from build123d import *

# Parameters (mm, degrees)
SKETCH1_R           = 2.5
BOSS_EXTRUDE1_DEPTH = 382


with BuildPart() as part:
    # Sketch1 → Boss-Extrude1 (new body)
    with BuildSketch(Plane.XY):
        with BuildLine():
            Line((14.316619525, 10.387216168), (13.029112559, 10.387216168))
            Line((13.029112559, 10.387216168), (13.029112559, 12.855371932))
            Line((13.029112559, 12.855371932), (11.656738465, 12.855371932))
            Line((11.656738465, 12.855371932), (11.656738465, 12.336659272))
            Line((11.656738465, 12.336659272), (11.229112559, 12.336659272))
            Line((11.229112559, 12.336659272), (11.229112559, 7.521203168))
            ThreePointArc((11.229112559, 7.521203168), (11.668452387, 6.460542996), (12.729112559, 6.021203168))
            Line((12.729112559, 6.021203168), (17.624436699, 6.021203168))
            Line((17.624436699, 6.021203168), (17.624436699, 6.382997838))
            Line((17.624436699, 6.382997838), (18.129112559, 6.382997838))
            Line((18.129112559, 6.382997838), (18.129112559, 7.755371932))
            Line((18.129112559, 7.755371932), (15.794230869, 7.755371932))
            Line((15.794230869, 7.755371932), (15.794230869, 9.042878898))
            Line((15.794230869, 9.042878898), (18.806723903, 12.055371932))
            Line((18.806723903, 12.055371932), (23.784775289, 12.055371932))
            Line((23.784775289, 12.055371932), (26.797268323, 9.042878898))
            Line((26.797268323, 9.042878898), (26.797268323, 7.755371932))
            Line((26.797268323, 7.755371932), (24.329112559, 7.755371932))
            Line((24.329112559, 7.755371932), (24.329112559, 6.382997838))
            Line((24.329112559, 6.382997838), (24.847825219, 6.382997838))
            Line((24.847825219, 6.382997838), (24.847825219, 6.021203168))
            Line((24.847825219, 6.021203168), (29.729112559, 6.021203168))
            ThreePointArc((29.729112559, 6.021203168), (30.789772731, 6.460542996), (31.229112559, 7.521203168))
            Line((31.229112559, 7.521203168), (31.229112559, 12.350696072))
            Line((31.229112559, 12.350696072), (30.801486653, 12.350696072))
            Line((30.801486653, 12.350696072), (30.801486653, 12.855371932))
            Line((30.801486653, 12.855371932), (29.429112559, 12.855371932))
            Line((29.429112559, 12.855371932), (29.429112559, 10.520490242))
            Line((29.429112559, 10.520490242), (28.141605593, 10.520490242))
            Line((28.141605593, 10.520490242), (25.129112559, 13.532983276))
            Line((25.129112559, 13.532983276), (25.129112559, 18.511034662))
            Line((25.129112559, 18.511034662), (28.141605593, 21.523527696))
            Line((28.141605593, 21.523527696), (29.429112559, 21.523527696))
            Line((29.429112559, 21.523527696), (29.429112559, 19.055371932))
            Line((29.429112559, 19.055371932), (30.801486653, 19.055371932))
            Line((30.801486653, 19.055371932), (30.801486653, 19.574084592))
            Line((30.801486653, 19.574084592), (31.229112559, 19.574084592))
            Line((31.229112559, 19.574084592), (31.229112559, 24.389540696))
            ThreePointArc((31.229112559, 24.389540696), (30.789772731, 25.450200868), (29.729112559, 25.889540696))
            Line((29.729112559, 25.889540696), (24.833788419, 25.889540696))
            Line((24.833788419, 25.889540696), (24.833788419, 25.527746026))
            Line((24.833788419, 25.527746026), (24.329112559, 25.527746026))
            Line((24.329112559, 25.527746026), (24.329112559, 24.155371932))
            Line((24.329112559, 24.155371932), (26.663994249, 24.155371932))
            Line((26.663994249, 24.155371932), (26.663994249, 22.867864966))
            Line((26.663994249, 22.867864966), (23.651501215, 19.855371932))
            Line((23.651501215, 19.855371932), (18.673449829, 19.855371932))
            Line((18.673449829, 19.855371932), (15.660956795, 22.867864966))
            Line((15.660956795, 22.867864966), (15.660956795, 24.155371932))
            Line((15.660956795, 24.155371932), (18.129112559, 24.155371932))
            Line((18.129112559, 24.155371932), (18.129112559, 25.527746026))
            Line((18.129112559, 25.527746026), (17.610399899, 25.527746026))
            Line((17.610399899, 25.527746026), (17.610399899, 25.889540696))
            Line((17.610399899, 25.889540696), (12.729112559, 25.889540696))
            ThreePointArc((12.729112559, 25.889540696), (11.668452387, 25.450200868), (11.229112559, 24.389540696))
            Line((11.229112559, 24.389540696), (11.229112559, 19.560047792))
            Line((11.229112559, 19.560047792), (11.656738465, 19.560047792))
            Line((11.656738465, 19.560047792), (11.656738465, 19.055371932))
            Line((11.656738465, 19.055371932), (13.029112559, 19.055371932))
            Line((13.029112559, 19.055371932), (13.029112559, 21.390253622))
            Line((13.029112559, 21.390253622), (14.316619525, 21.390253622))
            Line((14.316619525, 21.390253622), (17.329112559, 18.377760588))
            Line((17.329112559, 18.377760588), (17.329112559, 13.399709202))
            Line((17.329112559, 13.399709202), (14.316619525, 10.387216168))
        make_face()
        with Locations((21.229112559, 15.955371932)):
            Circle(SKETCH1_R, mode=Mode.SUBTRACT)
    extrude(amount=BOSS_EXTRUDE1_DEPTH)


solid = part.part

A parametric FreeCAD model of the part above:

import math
import FreeCAD as App
import Part
import Sketcher
from FreeCAD import Vector
Q = App.Units.Quantity

doc = App.newDocument("Part")
params = doc.addObject("Spreadsheet::Sheet", "Params")
for row, (alias, value) in enumerate([
    ("sketch1_diameter", "5 mm"),
    ("sketch1_radius", "1.5 mm"),
    ("pad1_length", "382 mm"),
], start=1):
    params.set(f"A{row}", alias)
    params.set(f"B{row}", "=" + value)
    params.setAlias(f"B{row}", alias)

body = doc.addObject("PartDesign::Body", "Body")

sketch1 = body.newObject("Sketcher::SketchObject", "Sketch")
sketch1.AttachmentSupport = (doc.getObject("XY_Plane"), [""])
sketch1.MapMode = "FlatFace"
sketch1.addGeometry([
    Part.LineSegment(Vector(14.31662, 10.387216, 0), Vector(13.029113, 10.387216, 0)),
    Part.LineSegment(Vector(13.029113, 10.387216, 0), Vector(13.029113, 12.855372, 0)),
    Part.LineSegment(Vector(13.029113, 12.855372, 0), Vector(11.656738, 12.855372, 0)),
    Part.LineSegment(Vector(11.656738, 12.855372, 0), Vector(11.656738, 12.336659, 0)),
    Part.LineSegment(Vector(11.656738, 12.336659, 0), Vector(11.229113, 12.336659, 0)),
    Part.LineSegment(Vector(11.229113, 12.336659, 0), Vector(11.229113, 7.521203, 0)),
    Part.ArcOfCircle(Part.Circle(Vector(12.729113, 7.521203, 0), Vector(0, 0, 1), 1.5), math.radians(180), math.radians(270)),
    Part.LineSegment(Vector(12.729113, 6.021203, 0), Vector(17.624437, 6.021203, 0)),
    Part.LineSegment(Vector(17.624437, 6.021203, 0), Vector(17.624437, 6.382998, 0)),
    Part.LineSegment(Vector(17.624437, 6.382998, 0), Vector(18.129113, 6.382998, 0)),
    Part.LineSegment(Vector(18.129113, 6.382998, 0), Vector(18.129113, 7.755372, 0)),
    Part.LineSegment(Vector(18.129113, 7.755372, 0), Vector(15.794231, 7.755372, 0)),
    Part.LineSegment(Vector(15.794231, 7.755372, 0), Vector(15.794231, 9.042879, 0)),
    Part.LineSegment(Vector(15.794231, 9.042879, 0), Vector(18.806724, 12.055372, 0)),
    Part.LineSegment(Vector(18.806724, 12.055372, 0), Vector(23.784775, 12.055372, 0)),
    Part.LineSegment(Vector(23.784775, 12.055372, 0), Vector(26.797268, 9.042879, 0)),
    Part.LineSegment(Vector(26.797268, 9.042879, 0), Vector(26.797268, 7.755372, 0)),
    Part.LineSegment(Vector(26.797268, 7.755372, 0), Vector(24.329113, 7.755372, 0)),
    Part.LineSegment(Vector(24.329113, 7.755372, 0), Vector(24.329113, 6.382998, 0)),
    Part.LineSegment(Vector(24.329113, 6.382998, 0), Vector(24.847825, 6.382998, 0)),
    Part.LineSegment(Vector(24.847825, 6.382998, 0), Vector(24.847825, 6.021203, 0)),
    Part.LineSegment(Vector(24.847825, 6.021203, 0), Vector(29.729113, 6.021203, 0)),
    Part.ArcOfCircle(Part.Circle(Vector(29.729113, 7.521203, 0), Vector(0, 0, 1), 1.5), math.radians(-90), math.radians(0)),
    Part.LineSegment(Vector(31.229113, 7.521203, 0), Vector(31.229113, 12.350696, 0)),
    Part.LineSegment(Vector(31.229113, 12.350696, 0), Vector(30.801487, 12.350696, 0)),
    Part.LineSegment(Vector(30.801487, 12.350696, 0), Vector(30.801487, 12.855372, 0)),
    Part.LineSegment(Vector(30.801487, 12.855372, 0), Vector(29.429113, 12.855372, 0)),
    Part.LineSegment(Vector(29.429113, 12.855372, 0), Vector(29.429113, 10.52049, 0)),
    Part.LineSegment(Vector(29.429113, 10.52049, 0), Vector(28.141606, 10.52049, 0)),
    Part.LineSegment(Vector(28.141606, 10.52049, 0), Vector(25.129113, 13.532983, 0)),
    Part.LineSegment(Vector(25.129113, 13.532983, 0), Vector(25.129113, 18.511035, 0)),
    Part.LineSegment(Vector(25.129113, 18.511035, 0), Vector(28.141606, 21.523528, 0)),
    Part.LineSegment(Vector(28.141606, 21.523528, 0), Vector(29.429113, 21.523528, 0)),
    Part.LineSegment(Vector(29.429113, 21.523528, 0), Vector(29.429113, 19.055372, 0)),
    Part.LineSegment(Vector(29.429113, 19.055372, 0), Vector(30.801487, 19.055372, 0)),
    Part.LineSegment(Vector(30.801487, 19.055372, 0), Vector(30.801487, 19.574085, 0)),
    Part.LineSegment(Vector(30.801487, 19.574085, 0), Vector(31.229113, 19.574085, 0)),
    Part.LineSegment(Vector(31.229113, 19.574085, 0), Vector(31.229113, 24.389541, 0)),
    Part.ArcOfCircle(Part.Circle(Vector(29.729113, 24.389541, 0), Vector(0, 0, 1), 1.5), math.radians(0), math.radians(90)),
    Part.LineSegment(Vector(29.729113, 25.889541, 0), Vector(24.833788, 25.889541, 0)),
    Part.LineSegment(Vector(24.833788, 25.889541, 0), Vector(24.833788, 25.527746, 0)),
    Part.LineSegment(Vector(24.833788, 25.527746, 0), Vector(24.329113, 25.527746, 0)),
    Part.LineSegment(Vector(24.329113, 25.527746, 0), Vector(24.329113, 24.155372, 0)),
    Part.LineSegment(Vector(24.329113, 24.155372, 0), Vector(26.663994, 24.155372, 0)),
    Part.LineSegment(Vector(26.663994, 24.155372, 0), Vector(26.663994, 22.867865, 0)),
    Part.LineSegment(Vector(26.663994, 22.867865, 0), Vector(23.651501, 19.855372, 0)),
    Part.LineSegment(Vector(23.651501, 19.855372, 0), Vector(18.67345, 19.855372, 0)),
    Part.LineSegment(Vector(18.67345, 19.855372, 0), Vector(15.660957, 22.867865, 0)),
    Part.LineSegment(Vector(15.660957, 22.867865, 0), Vector(15.660957, 24.155372, 0)),
    Part.LineSegment(Vector(15.660957, 24.155372, 0), Vector(18.129113, 24.155372, 0)),
    Part.LineSegment(Vector(18.129113, 24.155372, 0), Vector(18.129113, 25.527746, 0)),
    Part.LineSegment(Vector(18.129113, 25.527746, 0), Vector(17.6104, 25.527746, 0)),
    Part.LineSegment(Vector(17.6104, 25.527746, 0), Vector(17.6104, 25.889541, 0)),
    Part.LineSegment(Vector(17.6104, 25.889541, 0), Vector(12.729113, 25.889541, 0)),
    Part.ArcOfCircle(Part.Circle(Vector(12.729113, 24.389541, 0), Vector(0, 0, 1), 1.5), math.radians(90), math.radians(180)),
    Part.LineSegment(Vector(11.229113, 24.389541, 0), Vector(11.229113, 19.560048, 0)),
    Part.LineSegment(Vector(11.229113, 19.560048, 0), Vector(11.656738, 19.560048, 0)),
    Part.LineSegment(Vector(11.656738, 19.560048, 0), Vector(11.656738, 19.055372, 0)),
    Part.LineSegment(Vector(11.656738, 19.055372, 0), Vector(13.029113, 19.055372, 0)),
    Part.LineSegment(Vector(13.029113, 19.055372, 0), Vector(13.029113, 21.390254, 0)),
    Part.LineSegment(Vector(13.029113, 21.390254, 0), Vector(14.31662, 21.390254, 0)),
    Part.LineSegment(Vector(14.31662, 21.390254, 0), Vector(17.329113, 18.377761, 0)),
    Part.LineSegment(Vector(17.329113, 18.377761, 0), Vector(17.329113, 13.399709, 0)),
    Part.LineSegment(Vector(17.329113, 13.399709, 0), Vector(14.31662, 10.387216, 0)),
    Part.Circle(Vector(21.229113, 15.955372, 0), Vector(0, 0, 1), 2.5),
], False)
sketch1.addConstraint([
    Sketcher.Constraint("Coincident", 0, 2, 1, 1),
    Sketcher.Constraint("Coincident", 1, 2, 2, 1),
    Sketcher.Constraint("Coincident", 2, 2, 3, 1),
    Sketcher.Constraint("Coincident", 3, 2, 4, 1),
    Sketcher.Constraint("Coincident", 4, 2, 5, 1),
    Sketcher.Constraint("Tangent", 5, 2, 6, 1),
    Sketcher.Constraint("Tangent", 6, 2, 7, 1),
    Sketcher.Constraint("Coincident", 7, 2, 8, 1),
    Sketcher.Constraint("Coincident", 8, 2, 9, 1),
    Sketcher.Constraint("Coincident", 9, 2, 10, 1),
    Sketcher.Constraint("Coincident", 10, 2, 11, 1),
    Sketcher.Constraint("Coincident", 11, 2, 12, 1),
    Sketcher.Constraint("Coincident", 12, 2, 13, 1),
    Sketcher.Constraint("Coincident", 13, 2, 14, 1),
    Sketcher.Constraint("Coincident", 14, 2, 15, 1),
    Sketcher.Constraint("Coincident", 15, 2, 16, 1),
    Sketcher.Constraint("Coincident", 16, 2, 17, 1),
    Sketcher.Constraint("Coincident", 17, 2, 18, 1),
    Sketcher.Constraint("Coincident", 18, 2, 19, 1),
    Sketcher.Constraint("Coincident", 19, 2, 20, 1),
    Sketcher.Constraint("Coincident", 20, 2, 21, 1),
    Sketcher.Constraint("Tangent", 21, 2, 22, 1),
    Sketcher.Constraint("Tangent", 22, 2, 23, 1),
    Sketcher.Constraint("Coincident", 23, 2, 24, 1),
    Sketcher.Constraint("Coincident", 24, 2, 25, 1),
    Sketcher.Constraint("Coincident", 25, 2, 26, 1),
    Sketcher.Constraint("Coincident", 26, 2, 27, 1),
    Sketcher.Constraint("Coincident", 27, 2, 28, 1),
    Sketcher.Constraint("Coincident", 28, 2, 29, 1),
    Sketcher.Constraint("Coincident", 29, 2, 30, 1),
    Sketcher.Constraint("Coincident", 30, 2, 31, 1),
    Sketcher.Constraint("Coincident", 31, 2, 32, 1),
    Sketcher.Constraint("Coincident", 32, 2, 33, 1),
    Sketcher.Constraint("Coincident", 33, 2, 34, 1),
    Sketcher.Constraint("Coincident", 34, 2, 35, 1),
    Sketcher.Constraint("Coincident", 35, 2, 36, 1),
    Sketcher.Constraint("Coincident", 36, 2, 37, 1),
    Sketcher.Constraint("Tangent", 37, 2, 38, 1),
    Sketcher.Constraint("Tangent", 38, 2, 39, 1),
    Sketcher.Constraint("Coincident", 39, 2, 40, 1),
    Sketcher.Constraint("Coincident", 40, 2, 41, 1),
    Sketcher.Constraint("Coincident", 41, 2, 42, 1),
    Sketcher.Constraint("Coincident", 42, 2, 43, 1),
    Sketcher.Constraint("Coincident", 43, 2, 44, 1),
    Sketcher.Constraint("Coincident", 44, 2, 45, 1),
    Sketcher.Constraint("Coincident", 45, 2, 46, 1),
    Sketcher.Constraint("Coincident", 46, 2, 47, 1),
    Sketcher.Constraint("Coincident", 47, 2, 48, 1),
    Sketcher.Constraint("Coincident", 48, 2, 49, 1),
    Sketcher.Constraint("Coincident", 49, 2, 50, 1),
    Sketcher.Constraint("Coincident", 50, 2, 51, 1),
    Sketcher.Constraint("Coincident", 51, 2, 52, 1),
    Sketcher.Constraint("Coincident", 52, 2, 53, 1),
    Sketcher.Constraint("Tangent", 53, 2, 54, 1),
    Sketcher.Constraint("Tangent", 54, 2, 55, 1),
    Sketcher.Constraint("Coincident", 55, 2, 56, 1),
    Sketcher.Constraint("Coincident", 56, 2, 57, 1),
    Sketcher.Constraint("Coincident", 57, 2, 58, 1),
    Sketcher.Constraint("Coincident", 58, 2, 59, 1),
    Sketcher.Constraint("Coincident", 59, 2, 60, 1),
    Sketcher.Constraint("Coincident", 60, 2, 61, 1),
    Sketcher.Constraint("Coincident", 61, 2, 62, 1),
    Sketcher.Constraint("Coincident", 62, 2, 63, 1),
    Sketcher.Constraint("Coincident", 63, 2, 0, 1),
    Sketcher.Constraint("Horizontal", 0),
    Sketcher.Constraint("Vertical", 1),
    Sketcher.Constraint("Horizontal", 2),
    Sketcher.Constraint("Vertical", 3),
    Sketcher.Constraint("Horizontal", 4),
    Sketcher.Constraint("Vertical", 5),
    Sketcher.Constraint("Horizontal", 7),
    Sketcher.Constraint("Vertical", 8),
    Sketcher.Constraint("Horizontal", 9),
    Sketcher.Constraint("Vertical", 10),
    Sketcher.Constraint("Horizontal", 11),
    Sketcher.Constraint("Vertical", 12),
    Sketcher.Constraint("Horizontal", 14),
    Sketcher.Constraint("Vertical", 16),
    Sketcher.Constraint("Horizontal", 17),
    Sketcher.Constraint("Vertical", 18),
    Sketcher.Constraint("Horizontal", 19),
    Sketcher.Constraint("Vertical", 20),
    Sketcher.Constraint("Horizontal", 21),
    Sketcher.Constraint("Vertical", 23),
    Sketcher.Constraint("Horizontal", 24),
    Sketcher.Constraint("Vertical", 25),
    Sketcher.Constraint("Horizontal", 26),
    Sketcher.Constraint("Vertical", 27),
    Sketcher.Constraint("Horizontal", 28),
    Sketcher.Constraint("Vertical", 30),
    Sketcher.Constraint("Horizontal", 32),
    Sketcher.Constraint("Vertical", 33),
    Sketcher.Constraint("Horizontal", 34),
    Sketcher.Constraint("Vertical", 35),
    Sketcher.Constraint("Horizontal", 36),
    Sketcher.Constraint("Vertical", 37),
    Sketcher.Constraint("Horizontal", 39),
    Sketcher.Constraint("Vertical", 40),
    Sketcher.Constraint("Horizontal", 41),
    Sketcher.Constraint("Vertical", 42),
    Sketcher.Constraint("Horizontal", 43),
    Sketcher.Constraint("Vertical", 44),
    Sketcher.Constraint("Horizontal", 46),
    Sketcher.Constraint("Vertical", 48),
    Sketcher.Constraint("Horizontal", 49),
    Sketcher.Constraint("Vertical", 50),
    Sketcher.Constraint("Horizontal", 51),
    Sketcher.Constraint("Vertical", 52),
    Sketcher.Constraint("Horizontal", 53),
    Sketcher.Constraint("Vertical", 55),
    Sketcher.Constraint("Horizontal", 56),
    Sketcher.Constraint("Vertical", 57),
    Sketcher.Constraint("Horizontal", 58),
    Sketcher.Constraint("Vertical", 59),
    Sketcher.Constraint("Horizontal", 60),
    Sketcher.Constraint("Vertical", 62),
    Sketcher.Constraint("Equal", 6, 22),
    Sketcher.Constraint("Equal", 22, 38),
    Sketcher.Constraint("Equal", 38, 54),
    Sketcher.Constraint("Perpendicular", 13, 15),
    Sketcher.Constraint("Parallel", 15, 29),
    Sketcher.Constraint("Perpendicular", 29, 31),
    Sketcher.Constraint("Parallel", 31, 45),
    Sketcher.Constraint("Perpendicular", 45, 47),
    Sketcher.Constraint("Parallel", 47, 61),
    Sketcher.Constraint("Perpendicular", 61, 63),
    Sketcher.Constraint("Horizontal", 6, 3, 22, 3),
    Sketcher.Constraint("Horizontal", 38, 3, 54, 3),
    Sketcher.Constraint("Horizontal", 12, 2, 15, 2),
    Sketcher.Constraint("Horizontal", 11, 2, 16, 2),
    Sketcher.Constraint("Horizontal", 9, 2, 18, 2),
    Sketcher.Constraint("Horizontal", 2, 2, 25, 2),
    Sketcher.Constraint("Horizontal", 44, 2, 47, 2),
    Sketcher.Constraint("Horizontal", 43, 2, 48, 2),
    Sketcher.Constraint("Horizontal", 41, 2, 50, 2),
    Sketcher.Constraint("Horizontal", 34, 2, 57, 2),
    Sketcher.Constraint("Vertical", 22, 3, 38, 3),
    Sketcher.Constraint("Vertical", 6, 3, 54, 3),
    Sketcher.Constraint("Vertical", 28, 2, 31, 2),
    Sketcher.Constraint("Vertical", 27, 2, 32, 2),
    Sketcher.Constraint("Vertical", 25, 2, 34, 2),
    Sketcher.Constraint("Vertical", 18, 2, 41, 2),
    Sketcher.Constraint("Vertical", 10, 2, 49, 2),
    Sketcher.Constraint("Vertical", 3, 2, 56, 2),
    Sketcher.Constraint("Vertical", 1, 2, 58, 2),
    Sketcher.Constraint("Vertical", 60, 2, 63, 2),
    Sketcher.Constraint("Equal", 4, 24),
    Sketcher.Constraint("Equal", 2, 26),
    Sketcher.Constraint("Equal", 0, 28),
    Sketcher.Constraint("Equal", 7, 39),
    Sketcher.Constraint("Equal", 9, 41),
    Sketcher.Constraint("Equal", 11, 43),
    Sketcher.Constraint("Equal", 14, 46),
    Sketcher.Constraint("Equal", 17, 49),
    Sketcher.Constraint("Equal", 19, 51),
    Sketcher.Constraint("Equal", 49, 1),
    Sketcher.Constraint("Equal", 51, 3),
    Sketcher.Constraint("Equal", 58, 10),
    Sketcher.Constraint("Equal", 60, 12),
    Sketcher.Constraint("Equal", 41, 25),
    Sketcher.Constraint("Equal", 43, 27),
    Sketcher.Constraint("Equal", 46, 30),
    Sketcher.Constraint("Equal", 1, 33),
    Sketcher.Constraint("Equal", 3, 35),
    Sketcher.Constraint("Equal", 5, 37),
    Sketcher.Constraint("Equal", 20, 40),
    Sketcher.Constraint("Equal", 18, 42),
    Sketcher.Constraint("Equal", 16, 44),
    Sketcher.Constraint("Equal", 23, 55),
    Sketcher.Constraint("Equal", 27, 59),
    Sketcher.Constraint("Equal", 30, 62),
    Sketcher.Constraint("Equal", 13, 15),
    Sketcher.Constraint("Equal", 15, 29),
    Sketcher.Constraint("Diameter", 64, Q("5 mm")),
    Sketcher.Constraint("Radius", 6, Q("1.5 mm")),
    Sketcher.Constraint("DistanceX", 11, 2, 11, 1, Q("2.334882 mm")),
    Sketcher.Constraint("DistanceX", 14, 1, 14, 2, Q("4.978051 mm")),
    Sketcher.Constraint("DistanceX", -1, 1, 45, 2, Q("23.651501 mm")),
    Sketcher.Constraint("DistanceX", -1, 1, 51, 2, Q("17.6104 mm")),
    Sketcher.Constraint("Distance", 13, Q("4.260309 mm")),
    Sketcher.Constraint("DistanceX", 0, 2, 0, 1, Q("1.287507 mm")),
    Sketcher.Constraint("DistanceX", 2, 2, 2, 1, Q("1.372374 mm")),
    Sketcher.Constraint("DistanceX", 4, 2, 4, 1, Q("0.427626 mm")),
    Sketcher.Constraint("DistanceX", 7, 1, 7, 2, Q("4.895324 mm")),
    Sketcher.Constraint("DistanceX", 9, 1, 9, 2, Q("0.504676 mm")),
    Sketcher.Constraint("DistanceX", 17, 2, 17, 1, Q("2.468156 mm")),
    Sketcher.Constraint("DistanceY", 5, 2, 5, 1, Q("4.815456 mm")),
    Sketcher.Constraint("DistanceY", 8, 1, 8, 2, Q("0.361795 mm")),
    Sketcher.Constraint("DistanceY", -1, 1, 38, 3, Q("24.389541 mm")),
    Sketcher.Constraint("DistanceY", -1, 1, 64, 3, Q("15.955372 mm")),
    Sketcher.Constraint("DistanceX", -1, 1, 64, 3, Q("21.229113 mm")),
])
sketch1.setExpression("Constraints[173]", "Params.sketch1_diameter")
sketch1.setExpression("Constraints[174]", "Params.sketch1_radius")
pad1 = body.newObject("PartDesign::Pad", "Pad")
pad1.Profile = sketch1
pad1.setExpression("Length", "Params.pad1_length")

doc.recompute()
